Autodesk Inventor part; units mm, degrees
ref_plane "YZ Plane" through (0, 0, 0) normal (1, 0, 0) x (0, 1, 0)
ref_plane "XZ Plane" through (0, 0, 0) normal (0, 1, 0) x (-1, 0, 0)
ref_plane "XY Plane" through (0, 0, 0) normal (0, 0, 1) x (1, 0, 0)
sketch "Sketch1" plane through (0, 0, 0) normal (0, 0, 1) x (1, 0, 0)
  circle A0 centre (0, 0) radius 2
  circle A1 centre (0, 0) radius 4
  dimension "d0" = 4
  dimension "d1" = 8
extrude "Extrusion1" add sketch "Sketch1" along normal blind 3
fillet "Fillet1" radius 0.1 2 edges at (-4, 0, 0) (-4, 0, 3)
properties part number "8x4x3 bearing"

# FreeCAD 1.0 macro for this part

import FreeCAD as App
import Part
import Sketcher


def edges_at(feature, points):
    """Names of the edges that pass closest to the given points."""
    edges = feature.Shape.Edges
    near = lambda p: min(range(len(edges)), key=lambda i: edges[i].distToShape(Part.Vertex(*p))[0])
    return sorted({f"Edge{near(p) + 1}" for p in points})

doc = App.newDocument("Part")
body = doc.addObject("PartDesign::Body", "Body")

# Sketch on XY plane
sketch1 = body.newObject("Sketcher::SketchObject", "Sketch")
sketch1.AttachmentSupport = (doc.getObject("XY_Plane"), [""])
sketch1.MapMode = "FlatFace"
sketch1.addGeometry([
    Part.Circle(App.Vector(0, 0, 0), App.Vector(0, 0, 1), 4),
    Part.Circle(App.Vector(0, 0, 0), App.Vector(0, 0, 1), 2),
], False)
sketch1.addConstraint([
    Sketcher.Constraint("Coincident", 0, 3, -1, 1),
    Sketcher.Constraint("Coincident", 1, 3, -1, 1),
    Sketcher.Constraint("Diameter", 0, 8.0),
    Sketcher.Constraint("Diameter", 1, 4.0),
])
pad1 = body.newObject("PartDesign::Pad", "Pad")
pad1.Profile = sketch1
pad1.Length = 3
doc.recompute()

fillet = body.newObject("PartDesign::Fillet", "Fillet")
fillet.Base = (pad1, edges_at(pad1, [(-4, 0, 0), (-4, 0, 3)]))
fillet.Radius = 0.1

doc.recompute()
